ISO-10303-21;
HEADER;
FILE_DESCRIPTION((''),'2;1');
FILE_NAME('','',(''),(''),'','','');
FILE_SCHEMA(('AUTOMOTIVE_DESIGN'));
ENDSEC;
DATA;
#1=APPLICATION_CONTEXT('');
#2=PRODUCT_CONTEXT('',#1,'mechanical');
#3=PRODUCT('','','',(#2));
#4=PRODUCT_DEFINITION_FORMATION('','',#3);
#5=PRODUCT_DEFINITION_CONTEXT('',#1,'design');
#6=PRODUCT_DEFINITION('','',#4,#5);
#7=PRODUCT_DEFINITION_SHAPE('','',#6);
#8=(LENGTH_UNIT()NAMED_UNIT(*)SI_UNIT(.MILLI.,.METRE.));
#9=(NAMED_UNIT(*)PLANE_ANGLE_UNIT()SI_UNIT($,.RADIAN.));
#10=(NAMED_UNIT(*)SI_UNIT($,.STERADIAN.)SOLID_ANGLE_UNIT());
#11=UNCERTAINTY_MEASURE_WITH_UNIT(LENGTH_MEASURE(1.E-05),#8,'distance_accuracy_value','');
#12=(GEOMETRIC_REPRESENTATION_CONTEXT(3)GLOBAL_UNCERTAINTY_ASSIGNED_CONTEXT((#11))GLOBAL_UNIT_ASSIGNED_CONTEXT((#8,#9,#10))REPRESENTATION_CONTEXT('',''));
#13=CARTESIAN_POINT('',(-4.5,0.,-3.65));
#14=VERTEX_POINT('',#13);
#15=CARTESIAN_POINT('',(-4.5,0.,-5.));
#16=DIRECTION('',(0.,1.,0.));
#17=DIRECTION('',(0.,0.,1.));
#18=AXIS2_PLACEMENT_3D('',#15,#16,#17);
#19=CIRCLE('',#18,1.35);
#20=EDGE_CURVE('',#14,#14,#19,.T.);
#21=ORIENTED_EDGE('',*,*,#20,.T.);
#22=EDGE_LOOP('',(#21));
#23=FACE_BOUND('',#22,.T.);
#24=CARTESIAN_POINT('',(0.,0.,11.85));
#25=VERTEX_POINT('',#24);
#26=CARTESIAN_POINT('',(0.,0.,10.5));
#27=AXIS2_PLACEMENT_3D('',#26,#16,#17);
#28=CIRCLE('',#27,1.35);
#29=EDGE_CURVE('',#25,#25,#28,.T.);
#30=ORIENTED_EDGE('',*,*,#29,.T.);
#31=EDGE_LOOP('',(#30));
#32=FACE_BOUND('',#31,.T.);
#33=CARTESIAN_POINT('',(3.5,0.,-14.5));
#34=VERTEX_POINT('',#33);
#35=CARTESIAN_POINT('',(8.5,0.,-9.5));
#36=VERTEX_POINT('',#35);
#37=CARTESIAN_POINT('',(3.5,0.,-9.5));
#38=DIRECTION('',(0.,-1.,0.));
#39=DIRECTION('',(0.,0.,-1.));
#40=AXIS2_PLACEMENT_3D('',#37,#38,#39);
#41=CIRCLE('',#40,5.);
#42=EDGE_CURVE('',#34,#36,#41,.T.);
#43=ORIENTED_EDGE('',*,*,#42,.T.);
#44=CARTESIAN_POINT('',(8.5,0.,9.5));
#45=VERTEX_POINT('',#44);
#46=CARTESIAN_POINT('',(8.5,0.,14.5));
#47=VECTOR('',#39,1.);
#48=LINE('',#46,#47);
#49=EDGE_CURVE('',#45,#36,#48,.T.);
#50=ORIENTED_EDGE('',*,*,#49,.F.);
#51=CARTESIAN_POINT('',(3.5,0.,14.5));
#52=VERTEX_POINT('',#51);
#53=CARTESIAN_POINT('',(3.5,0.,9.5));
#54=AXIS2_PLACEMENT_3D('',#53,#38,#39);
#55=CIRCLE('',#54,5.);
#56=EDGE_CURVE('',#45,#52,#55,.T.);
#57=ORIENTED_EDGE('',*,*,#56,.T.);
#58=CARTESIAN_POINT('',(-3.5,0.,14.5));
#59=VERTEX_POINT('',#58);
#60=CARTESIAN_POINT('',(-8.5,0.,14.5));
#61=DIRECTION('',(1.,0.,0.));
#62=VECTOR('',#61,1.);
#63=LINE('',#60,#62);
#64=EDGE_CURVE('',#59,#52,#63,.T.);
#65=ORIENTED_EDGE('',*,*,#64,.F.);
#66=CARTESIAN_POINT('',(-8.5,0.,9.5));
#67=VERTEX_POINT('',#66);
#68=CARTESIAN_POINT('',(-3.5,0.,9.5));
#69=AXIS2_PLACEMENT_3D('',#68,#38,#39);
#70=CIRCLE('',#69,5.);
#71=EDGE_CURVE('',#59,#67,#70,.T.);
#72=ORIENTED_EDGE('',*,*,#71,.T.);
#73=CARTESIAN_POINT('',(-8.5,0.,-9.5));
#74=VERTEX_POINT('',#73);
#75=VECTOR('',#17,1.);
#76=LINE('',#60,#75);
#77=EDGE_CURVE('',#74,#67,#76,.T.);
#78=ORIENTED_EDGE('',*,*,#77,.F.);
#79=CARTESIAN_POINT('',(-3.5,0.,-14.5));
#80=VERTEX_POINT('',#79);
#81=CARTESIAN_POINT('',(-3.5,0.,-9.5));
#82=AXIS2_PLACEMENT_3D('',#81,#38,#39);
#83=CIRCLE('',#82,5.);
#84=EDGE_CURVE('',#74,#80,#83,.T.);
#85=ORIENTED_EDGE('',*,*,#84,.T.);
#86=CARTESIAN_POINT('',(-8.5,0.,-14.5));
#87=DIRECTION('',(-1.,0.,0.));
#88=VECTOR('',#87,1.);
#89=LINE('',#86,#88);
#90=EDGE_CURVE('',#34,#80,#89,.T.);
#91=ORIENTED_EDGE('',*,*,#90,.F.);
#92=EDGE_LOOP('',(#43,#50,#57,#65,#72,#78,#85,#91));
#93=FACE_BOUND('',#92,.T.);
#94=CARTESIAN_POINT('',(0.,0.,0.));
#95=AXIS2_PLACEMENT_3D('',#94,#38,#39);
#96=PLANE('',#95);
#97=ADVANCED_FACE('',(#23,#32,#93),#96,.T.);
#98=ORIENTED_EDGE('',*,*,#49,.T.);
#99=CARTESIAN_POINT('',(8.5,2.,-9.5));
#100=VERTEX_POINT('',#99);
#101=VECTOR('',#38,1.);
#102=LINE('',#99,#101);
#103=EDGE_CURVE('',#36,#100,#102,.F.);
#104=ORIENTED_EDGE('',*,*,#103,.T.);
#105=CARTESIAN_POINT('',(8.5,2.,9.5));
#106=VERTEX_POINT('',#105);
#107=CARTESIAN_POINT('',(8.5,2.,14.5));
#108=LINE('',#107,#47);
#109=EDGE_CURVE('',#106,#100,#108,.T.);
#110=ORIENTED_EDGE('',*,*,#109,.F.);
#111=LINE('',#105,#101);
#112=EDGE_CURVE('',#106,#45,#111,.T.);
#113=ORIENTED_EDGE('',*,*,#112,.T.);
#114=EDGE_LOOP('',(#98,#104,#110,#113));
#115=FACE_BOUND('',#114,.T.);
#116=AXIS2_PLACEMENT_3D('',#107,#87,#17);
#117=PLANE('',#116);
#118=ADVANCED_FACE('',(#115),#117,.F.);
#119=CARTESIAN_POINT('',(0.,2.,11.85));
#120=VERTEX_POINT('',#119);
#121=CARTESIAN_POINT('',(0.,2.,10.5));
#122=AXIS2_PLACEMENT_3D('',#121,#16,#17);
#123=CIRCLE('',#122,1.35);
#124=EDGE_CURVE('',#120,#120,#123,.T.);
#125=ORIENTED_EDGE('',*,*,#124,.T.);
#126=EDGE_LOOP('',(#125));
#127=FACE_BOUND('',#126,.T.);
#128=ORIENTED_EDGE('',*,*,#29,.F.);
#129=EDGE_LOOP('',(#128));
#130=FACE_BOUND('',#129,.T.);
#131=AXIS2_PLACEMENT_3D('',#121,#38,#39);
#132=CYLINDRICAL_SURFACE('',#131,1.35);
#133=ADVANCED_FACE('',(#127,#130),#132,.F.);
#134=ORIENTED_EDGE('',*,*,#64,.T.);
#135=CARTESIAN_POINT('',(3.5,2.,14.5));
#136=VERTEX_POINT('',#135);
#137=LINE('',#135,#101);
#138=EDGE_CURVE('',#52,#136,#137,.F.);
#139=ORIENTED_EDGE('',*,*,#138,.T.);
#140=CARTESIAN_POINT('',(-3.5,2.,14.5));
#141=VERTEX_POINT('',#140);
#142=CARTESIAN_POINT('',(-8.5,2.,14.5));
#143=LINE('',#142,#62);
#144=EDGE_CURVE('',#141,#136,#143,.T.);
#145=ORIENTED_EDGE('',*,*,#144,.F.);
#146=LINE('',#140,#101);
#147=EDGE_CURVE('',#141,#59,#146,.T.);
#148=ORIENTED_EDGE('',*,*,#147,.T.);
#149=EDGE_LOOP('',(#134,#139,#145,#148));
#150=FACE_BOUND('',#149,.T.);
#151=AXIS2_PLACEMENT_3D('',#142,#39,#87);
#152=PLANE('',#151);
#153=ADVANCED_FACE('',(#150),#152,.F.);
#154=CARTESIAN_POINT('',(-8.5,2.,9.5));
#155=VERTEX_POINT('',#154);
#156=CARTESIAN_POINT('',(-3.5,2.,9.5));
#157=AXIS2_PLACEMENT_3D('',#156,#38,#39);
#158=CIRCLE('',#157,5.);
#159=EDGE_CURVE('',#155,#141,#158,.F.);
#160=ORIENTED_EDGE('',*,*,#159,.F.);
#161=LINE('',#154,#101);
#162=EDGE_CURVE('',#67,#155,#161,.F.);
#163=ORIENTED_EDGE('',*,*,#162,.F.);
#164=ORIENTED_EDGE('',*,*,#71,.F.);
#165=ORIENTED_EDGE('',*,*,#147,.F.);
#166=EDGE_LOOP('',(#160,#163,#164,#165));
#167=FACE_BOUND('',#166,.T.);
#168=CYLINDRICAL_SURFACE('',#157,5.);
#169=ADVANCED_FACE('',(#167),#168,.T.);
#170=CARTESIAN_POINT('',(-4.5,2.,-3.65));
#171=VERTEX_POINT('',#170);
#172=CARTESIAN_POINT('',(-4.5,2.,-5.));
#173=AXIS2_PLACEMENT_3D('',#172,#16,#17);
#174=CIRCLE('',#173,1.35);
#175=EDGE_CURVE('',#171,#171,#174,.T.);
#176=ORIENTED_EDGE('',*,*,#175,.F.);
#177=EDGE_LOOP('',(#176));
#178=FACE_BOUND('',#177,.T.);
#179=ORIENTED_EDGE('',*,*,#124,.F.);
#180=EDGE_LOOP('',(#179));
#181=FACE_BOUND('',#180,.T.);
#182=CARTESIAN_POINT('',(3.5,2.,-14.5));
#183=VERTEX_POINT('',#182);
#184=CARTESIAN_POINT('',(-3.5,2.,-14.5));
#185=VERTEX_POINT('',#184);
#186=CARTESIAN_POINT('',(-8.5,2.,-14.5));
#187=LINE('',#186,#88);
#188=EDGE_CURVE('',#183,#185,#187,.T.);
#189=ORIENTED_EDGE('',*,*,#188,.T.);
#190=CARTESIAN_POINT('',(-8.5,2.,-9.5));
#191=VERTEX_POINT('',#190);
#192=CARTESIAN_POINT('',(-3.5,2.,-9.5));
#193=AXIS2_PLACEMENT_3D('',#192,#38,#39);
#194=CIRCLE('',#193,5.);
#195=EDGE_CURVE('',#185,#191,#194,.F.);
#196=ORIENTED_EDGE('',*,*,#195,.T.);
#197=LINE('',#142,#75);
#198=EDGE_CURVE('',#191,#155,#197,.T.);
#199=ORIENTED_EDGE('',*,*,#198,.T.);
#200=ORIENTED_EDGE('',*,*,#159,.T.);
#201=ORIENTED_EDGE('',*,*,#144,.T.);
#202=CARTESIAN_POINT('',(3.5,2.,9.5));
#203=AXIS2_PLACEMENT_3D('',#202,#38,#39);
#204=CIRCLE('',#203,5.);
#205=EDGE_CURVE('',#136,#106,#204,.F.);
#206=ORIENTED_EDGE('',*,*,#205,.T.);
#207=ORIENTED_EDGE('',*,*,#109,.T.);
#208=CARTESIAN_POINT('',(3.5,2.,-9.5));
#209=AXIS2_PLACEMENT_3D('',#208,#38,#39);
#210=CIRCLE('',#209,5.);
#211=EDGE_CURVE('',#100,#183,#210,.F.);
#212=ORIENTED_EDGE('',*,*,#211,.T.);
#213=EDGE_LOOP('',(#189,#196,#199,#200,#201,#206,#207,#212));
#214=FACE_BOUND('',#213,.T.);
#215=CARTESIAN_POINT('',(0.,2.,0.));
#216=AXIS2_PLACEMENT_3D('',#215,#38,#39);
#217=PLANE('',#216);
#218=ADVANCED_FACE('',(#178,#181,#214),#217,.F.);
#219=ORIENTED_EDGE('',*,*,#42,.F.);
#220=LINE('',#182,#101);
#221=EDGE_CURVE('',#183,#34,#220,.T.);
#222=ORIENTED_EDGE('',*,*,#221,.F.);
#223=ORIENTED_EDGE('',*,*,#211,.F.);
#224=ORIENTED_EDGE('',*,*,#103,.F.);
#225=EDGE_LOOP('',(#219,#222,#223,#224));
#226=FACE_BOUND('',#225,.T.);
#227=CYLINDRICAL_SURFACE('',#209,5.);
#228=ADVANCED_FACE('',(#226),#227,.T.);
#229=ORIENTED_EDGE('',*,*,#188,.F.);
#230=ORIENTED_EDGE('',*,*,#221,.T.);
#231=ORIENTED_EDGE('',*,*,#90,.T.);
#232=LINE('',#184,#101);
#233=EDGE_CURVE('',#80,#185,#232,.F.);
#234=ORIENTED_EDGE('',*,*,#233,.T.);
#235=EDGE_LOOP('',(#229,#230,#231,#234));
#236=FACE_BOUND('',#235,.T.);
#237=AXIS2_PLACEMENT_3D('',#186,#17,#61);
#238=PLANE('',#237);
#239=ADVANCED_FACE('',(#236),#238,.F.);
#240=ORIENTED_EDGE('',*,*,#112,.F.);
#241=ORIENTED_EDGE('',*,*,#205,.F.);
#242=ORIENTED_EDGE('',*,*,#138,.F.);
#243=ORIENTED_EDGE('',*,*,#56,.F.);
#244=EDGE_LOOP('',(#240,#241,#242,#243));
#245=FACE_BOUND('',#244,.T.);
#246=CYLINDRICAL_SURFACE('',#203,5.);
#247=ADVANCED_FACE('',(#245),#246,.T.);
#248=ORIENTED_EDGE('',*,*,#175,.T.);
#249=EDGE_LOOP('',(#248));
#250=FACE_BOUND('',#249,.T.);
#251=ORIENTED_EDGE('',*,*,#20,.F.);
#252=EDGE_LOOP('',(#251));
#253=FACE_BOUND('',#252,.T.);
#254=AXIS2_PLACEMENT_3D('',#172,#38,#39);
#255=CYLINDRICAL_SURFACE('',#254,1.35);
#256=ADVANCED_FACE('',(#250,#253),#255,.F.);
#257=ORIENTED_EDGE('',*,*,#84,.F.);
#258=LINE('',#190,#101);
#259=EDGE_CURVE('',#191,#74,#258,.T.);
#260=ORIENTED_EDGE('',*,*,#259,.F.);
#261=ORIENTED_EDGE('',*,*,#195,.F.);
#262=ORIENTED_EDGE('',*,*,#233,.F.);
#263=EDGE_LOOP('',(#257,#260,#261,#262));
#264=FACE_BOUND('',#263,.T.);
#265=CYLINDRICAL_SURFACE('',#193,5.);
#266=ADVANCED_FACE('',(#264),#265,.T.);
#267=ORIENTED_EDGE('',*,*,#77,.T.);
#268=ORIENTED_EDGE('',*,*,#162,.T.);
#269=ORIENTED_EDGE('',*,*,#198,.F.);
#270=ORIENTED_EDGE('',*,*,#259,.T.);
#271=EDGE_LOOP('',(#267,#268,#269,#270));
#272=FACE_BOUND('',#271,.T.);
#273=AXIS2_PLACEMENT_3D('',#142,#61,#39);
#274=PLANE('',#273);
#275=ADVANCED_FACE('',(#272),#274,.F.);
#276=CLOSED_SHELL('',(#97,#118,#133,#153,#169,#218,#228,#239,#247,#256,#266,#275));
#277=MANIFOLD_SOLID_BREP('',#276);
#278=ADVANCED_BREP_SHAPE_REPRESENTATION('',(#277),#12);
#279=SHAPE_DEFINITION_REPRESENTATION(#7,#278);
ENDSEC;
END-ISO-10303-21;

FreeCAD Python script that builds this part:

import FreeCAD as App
import Part
import Sketcher
from FreeCAD import Vector


def edges_at(feature, points):
    """Names of the edges that pass closest to the given points."""
    edges = feature.Shape.Edges
    near = lambda p: min(range(len(edges)), key=lambda i: edges[i].distToShape(Part.Vertex(*p))[0])
    return sorted({f"Edge{near(p) + 1}" for p in points})

doc = App.newDocument("Part")
body = doc.addObject("PartDesign::Body", "Body")

sketch1 = doc.addObject("Sketcher::SketchObject", "Sketch")
body.addObject(sketch1)
sketch1.AttachmentSupport = (doc.XZ_Plane, [""])
sketch1.MapMode = "FlatFace"
sketch1.addGeometry(Part.LineSegment(Vector(-8.5, -14.5, 0), Vector(-8.5, 14.5, 0)), False)
sketch1.addGeometry(Part.LineSegment(Vector(-8.5, 14.5, 0), Vector(8.5, 14.5, 0)), False)
sketch1.addGeometry(Part.LineSegment(Vector(8.5, 14.5, 0), Vector(8.5, -14.5, 0)), False)
sketch1.addGeometry(Part.LineSegment(Vector(8.5, -14.5, 0), Vector(-8.5, -14.5, 0)), False)
sketch1.addGeometry(Part.Circle(Vector(0, 10.5, 0), Vector(0, 0, 1), 1.4), False)
sketch1.addGeometry(Part.Circle(Vector(-4.5, -5, 0), Vector(0, 0, 1), 1.4), False)
sketch1.addConstraint(Sketcher.Constraint("Coincident", 0, 2, 1, 1))
sketch1.addConstraint(Sketcher.Constraint("Coincident", 1, 2, 2, 1))
sketch1.addConstraint(Sketcher.Constraint("Coincident", 2, 2, 3, 1))
sketch1.addConstraint(Sketcher.Constraint("Coincident", 3, 2, 0, 1))
sketch1.addConstraint(Sketcher.Constraint("Vertical", 0))
sketch1.addConstraint(Sketcher.Constraint("Horizontal", 1))
sketch1.addConstraint(Sketcher.Constraint("Vertical", 2))
sketch1.addConstraint(Sketcher.Constraint("Horizontal", 3))
sketch1.addConstraint(Sketcher.Constraint("Equal", 4, 5))
sketch1.addConstraint(Sketcher.Constraint("Symmetric", 0, 2, 2, 2, -1, 1))
sketch1.addConstraint(Sketcher.Constraint("PointOnObject", 4, 3, -2))
sketch1.addConstraint(Sketcher.Constraint("Diameter", 4, 2.7))
sketch1.addConstraint(Sketcher.Constraint("DistanceX", 1, 1, 1, 2, 17.0))
sketch1.addConstraint(Sketcher.Constraint("DistanceY", 0, 1, 0, 2, 29.0))
sketch1.addConstraint(Sketcher.Constraint("DistanceY", 5, 3, -1, 1, 5.0))
sketch1.addConstraint(Sketcher.Constraint("DistanceY", 4, 3, 0, 2, 4.0))
sketch1.addConstraint(Sketcher.Constraint("DistanceX", 0, 2, 5, 3, 4.0))
pad1 = doc.addObject("PartDesign::Pad", "Pad")
body.addObject(pad1)
pad1.Profile = sketch1
pad1.Length = 2
pad1.Reversed = True
doc.recompute()

fillet = doc.addObject("PartDesign::Fillet", "Fillet")
body.addObject(fillet)
fillet.Base = (pad1, edges_at(pad1, [
    (8.5, 1, 14.5),
    (-8.5, 1, 14.5),
    (-8.5, 1, -14.5),
    (8.5, 1, -14.5),
]))
fillet.Radius = 5

doc.recompute()
